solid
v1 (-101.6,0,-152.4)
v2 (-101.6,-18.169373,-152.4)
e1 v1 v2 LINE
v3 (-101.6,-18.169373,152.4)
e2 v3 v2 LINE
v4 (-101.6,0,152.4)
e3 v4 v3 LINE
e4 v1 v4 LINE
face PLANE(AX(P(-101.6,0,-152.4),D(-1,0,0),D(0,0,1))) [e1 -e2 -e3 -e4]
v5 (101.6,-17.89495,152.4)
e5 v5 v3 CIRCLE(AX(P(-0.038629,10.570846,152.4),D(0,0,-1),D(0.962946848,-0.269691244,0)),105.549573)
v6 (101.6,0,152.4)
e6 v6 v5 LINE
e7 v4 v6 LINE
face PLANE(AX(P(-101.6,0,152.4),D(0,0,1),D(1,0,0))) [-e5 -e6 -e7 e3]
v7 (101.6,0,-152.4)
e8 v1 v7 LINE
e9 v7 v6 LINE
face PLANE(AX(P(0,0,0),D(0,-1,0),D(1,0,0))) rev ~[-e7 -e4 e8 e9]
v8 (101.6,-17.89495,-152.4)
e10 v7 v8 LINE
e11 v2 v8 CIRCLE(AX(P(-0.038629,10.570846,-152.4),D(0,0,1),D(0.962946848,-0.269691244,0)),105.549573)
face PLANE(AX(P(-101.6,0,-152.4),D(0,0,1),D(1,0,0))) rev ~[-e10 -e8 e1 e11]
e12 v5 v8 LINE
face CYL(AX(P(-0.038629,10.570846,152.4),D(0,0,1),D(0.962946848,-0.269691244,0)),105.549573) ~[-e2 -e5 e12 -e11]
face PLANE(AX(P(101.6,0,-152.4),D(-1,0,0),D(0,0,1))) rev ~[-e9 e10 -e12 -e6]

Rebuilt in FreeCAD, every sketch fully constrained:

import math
import FreeCAD as App
import Part
import Sketcher
Q = App.Units.Quantity

doc = App.newDocument("Part")
body = doc.addObject("PartDesign::Body", "Body")

# Sketch on XZ plane
sketch1 = doc.addObject("Sketcher::SketchObject", "Sketch")
body.addObject(sketch1)
sketch1.AttachmentSupport = (doc.XZ_Plane, [""])
sketch1.MapMode = "FlatFace"
sketch1.addGeometry(Part.LineSegment(App.Vector(-101.6, 152.4, 0), App.Vector(-101.6, -152.4, 0)), False)
sketch1.addGeometry(Part.LineSegment(App.Vector(-101.6, -152.4, 0), App.Vector(101.6, -152.4, 0)), False)
sketch1.addGeometry(Part.LineSegment(App.Vector(101.6, -152.4, 0), App.Vector(101.6, 152.4, 0)), False)
sketch1.addGeometry(Part.LineSegment(App.Vector(101.6, 152.4, 0), App.Vector(-101.6, 152.4, 0)), False)
sketch1.addConstraint(Sketcher.Constraint("Coincident", 0, 2, 1, 1))
sketch1.addConstraint(Sketcher.Constraint("Coincident", 1, 2, 2, 1))
sketch1.addConstraint(Sketcher.Constraint("Coincident", 2, 2, 3, 1))
sketch1.addConstraint(Sketcher.Constraint("Coincident", 3, 2, 0, 1))
sketch1.addConstraint(Sketcher.Constraint("Vertical", 0))
sketch1.addConstraint(Sketcher.Constraint("Horizontal", 1))
sketch1.addConstraint(Sketcher.Constraint("Vertical", 2))
sketch1.addConstraint(Sketcher.Constraint("Horizontal", 3))
sketch1.addConstraint(Sketcher.Constraint("Symmetric", 0, 2, 2, 2, -1, 1))
sketch1.addConstraint(Sketcher.Constraint("DistanceX", 1, 1, 1, 2, Q("8 in")))
sketch1.addConstraint(Sketcher.Constraint("DistanceY", 0, 2, 0, 1, Q("12 in")))
pad1 = doc.addObject("PartDesign::Pad", "Pad")
body.addObject(pad1)
pad1.Profile = sketch1
pad1.Length = Q("3.75 in")

# Sketch on XY plane
sketch2 = doc.addObject("Sketcher::SketchObject", "Sketch001")
body.addObject(sketch2)
sketch2.AttachmentSupport = (doc.XY_Plane, [""])
sketch2.MapMode = "FlatFace"
sketch2.AttachmentOffset = App.Placement(App.Vector(0, 0, 6 * 25.4), App.Rotation())
sketch2.addGeometry(Part.ArcOfCircle(Part.Circle(App.Vector(-0.038629, 10.570846, 0), App.Vector(0, 0, 1), 105.549573), math.radians(-164.199348), math.radians(-15.645895)), False)
sketch2.addGeometry(Part.LineSegment(App.Vector(-101.6, -18.169373, 0), App.Vector(-101.6, -95.25, 0)), False)
sketch2.addGeometry(Part.LineSegment(App.Vector(-101.6, -95.25, 0), App.Vector(101.6, -95.25, 0)), False)
sketch2.addGeometry(Part.LineSegment(App.Vector(101.6, -95.25, 0), App.Vector(101.6, -17.89495, 0)), False)
sketch2.addConstraint(Sketcher.Constraint("Coincident", 0, 1, 1, 1))
sketch2.addConstraint(Sketcher.Constraint("Coincident", 1, 2, 2, 1))
sketch2.addConstraint(Sketcher.Constraint("Coincident", 2, 2, 3, 1))
sketch2.addConstraint(Sketcher.Constraint("Coincident", 3, 2, 0, 2))
sketch2.addConstraint(Sketcher.Constraint("Vertical", 1))
sketch2.addConstraint(Sketcher.Constraint("Horizontal", 2))
sketch2.addConstraint(Sketcher.Constraint("Vertical", 3))
sketch2.addConstraint(Sketcher.Constraint("DistanceX", 2, 1, 2, 2, Q("8 in")))
sketch2.addConstraint(Sketcher.Constraint("DistanceX", 0, 1, -1, 1, Q("4 in")))
sketch2.addConstraint(Sketcher.Constraint("DistanceY", 1, 2, -1, 1, Q("3.75 in")))
sketch2.addConstraint(Sketcher.Constraint("Radius", 0, 105.549573))
sketch2.addConstraint(Sketcher.Constraint("DistanceY", 3, 1, 3, 2, 77.35505))
sketch2.addConstraint(Sketcher.Constraint("DistanceY", 1, 2, 1, 1, 77.080627))
pocket1 = doc.addObject("PartDesign::Pocket", "Pocket")
body.addObject(pocket1)
pocket1.Profile = sketch2
pocket1.Length = Q("12.5 in")

doc.recompute()
